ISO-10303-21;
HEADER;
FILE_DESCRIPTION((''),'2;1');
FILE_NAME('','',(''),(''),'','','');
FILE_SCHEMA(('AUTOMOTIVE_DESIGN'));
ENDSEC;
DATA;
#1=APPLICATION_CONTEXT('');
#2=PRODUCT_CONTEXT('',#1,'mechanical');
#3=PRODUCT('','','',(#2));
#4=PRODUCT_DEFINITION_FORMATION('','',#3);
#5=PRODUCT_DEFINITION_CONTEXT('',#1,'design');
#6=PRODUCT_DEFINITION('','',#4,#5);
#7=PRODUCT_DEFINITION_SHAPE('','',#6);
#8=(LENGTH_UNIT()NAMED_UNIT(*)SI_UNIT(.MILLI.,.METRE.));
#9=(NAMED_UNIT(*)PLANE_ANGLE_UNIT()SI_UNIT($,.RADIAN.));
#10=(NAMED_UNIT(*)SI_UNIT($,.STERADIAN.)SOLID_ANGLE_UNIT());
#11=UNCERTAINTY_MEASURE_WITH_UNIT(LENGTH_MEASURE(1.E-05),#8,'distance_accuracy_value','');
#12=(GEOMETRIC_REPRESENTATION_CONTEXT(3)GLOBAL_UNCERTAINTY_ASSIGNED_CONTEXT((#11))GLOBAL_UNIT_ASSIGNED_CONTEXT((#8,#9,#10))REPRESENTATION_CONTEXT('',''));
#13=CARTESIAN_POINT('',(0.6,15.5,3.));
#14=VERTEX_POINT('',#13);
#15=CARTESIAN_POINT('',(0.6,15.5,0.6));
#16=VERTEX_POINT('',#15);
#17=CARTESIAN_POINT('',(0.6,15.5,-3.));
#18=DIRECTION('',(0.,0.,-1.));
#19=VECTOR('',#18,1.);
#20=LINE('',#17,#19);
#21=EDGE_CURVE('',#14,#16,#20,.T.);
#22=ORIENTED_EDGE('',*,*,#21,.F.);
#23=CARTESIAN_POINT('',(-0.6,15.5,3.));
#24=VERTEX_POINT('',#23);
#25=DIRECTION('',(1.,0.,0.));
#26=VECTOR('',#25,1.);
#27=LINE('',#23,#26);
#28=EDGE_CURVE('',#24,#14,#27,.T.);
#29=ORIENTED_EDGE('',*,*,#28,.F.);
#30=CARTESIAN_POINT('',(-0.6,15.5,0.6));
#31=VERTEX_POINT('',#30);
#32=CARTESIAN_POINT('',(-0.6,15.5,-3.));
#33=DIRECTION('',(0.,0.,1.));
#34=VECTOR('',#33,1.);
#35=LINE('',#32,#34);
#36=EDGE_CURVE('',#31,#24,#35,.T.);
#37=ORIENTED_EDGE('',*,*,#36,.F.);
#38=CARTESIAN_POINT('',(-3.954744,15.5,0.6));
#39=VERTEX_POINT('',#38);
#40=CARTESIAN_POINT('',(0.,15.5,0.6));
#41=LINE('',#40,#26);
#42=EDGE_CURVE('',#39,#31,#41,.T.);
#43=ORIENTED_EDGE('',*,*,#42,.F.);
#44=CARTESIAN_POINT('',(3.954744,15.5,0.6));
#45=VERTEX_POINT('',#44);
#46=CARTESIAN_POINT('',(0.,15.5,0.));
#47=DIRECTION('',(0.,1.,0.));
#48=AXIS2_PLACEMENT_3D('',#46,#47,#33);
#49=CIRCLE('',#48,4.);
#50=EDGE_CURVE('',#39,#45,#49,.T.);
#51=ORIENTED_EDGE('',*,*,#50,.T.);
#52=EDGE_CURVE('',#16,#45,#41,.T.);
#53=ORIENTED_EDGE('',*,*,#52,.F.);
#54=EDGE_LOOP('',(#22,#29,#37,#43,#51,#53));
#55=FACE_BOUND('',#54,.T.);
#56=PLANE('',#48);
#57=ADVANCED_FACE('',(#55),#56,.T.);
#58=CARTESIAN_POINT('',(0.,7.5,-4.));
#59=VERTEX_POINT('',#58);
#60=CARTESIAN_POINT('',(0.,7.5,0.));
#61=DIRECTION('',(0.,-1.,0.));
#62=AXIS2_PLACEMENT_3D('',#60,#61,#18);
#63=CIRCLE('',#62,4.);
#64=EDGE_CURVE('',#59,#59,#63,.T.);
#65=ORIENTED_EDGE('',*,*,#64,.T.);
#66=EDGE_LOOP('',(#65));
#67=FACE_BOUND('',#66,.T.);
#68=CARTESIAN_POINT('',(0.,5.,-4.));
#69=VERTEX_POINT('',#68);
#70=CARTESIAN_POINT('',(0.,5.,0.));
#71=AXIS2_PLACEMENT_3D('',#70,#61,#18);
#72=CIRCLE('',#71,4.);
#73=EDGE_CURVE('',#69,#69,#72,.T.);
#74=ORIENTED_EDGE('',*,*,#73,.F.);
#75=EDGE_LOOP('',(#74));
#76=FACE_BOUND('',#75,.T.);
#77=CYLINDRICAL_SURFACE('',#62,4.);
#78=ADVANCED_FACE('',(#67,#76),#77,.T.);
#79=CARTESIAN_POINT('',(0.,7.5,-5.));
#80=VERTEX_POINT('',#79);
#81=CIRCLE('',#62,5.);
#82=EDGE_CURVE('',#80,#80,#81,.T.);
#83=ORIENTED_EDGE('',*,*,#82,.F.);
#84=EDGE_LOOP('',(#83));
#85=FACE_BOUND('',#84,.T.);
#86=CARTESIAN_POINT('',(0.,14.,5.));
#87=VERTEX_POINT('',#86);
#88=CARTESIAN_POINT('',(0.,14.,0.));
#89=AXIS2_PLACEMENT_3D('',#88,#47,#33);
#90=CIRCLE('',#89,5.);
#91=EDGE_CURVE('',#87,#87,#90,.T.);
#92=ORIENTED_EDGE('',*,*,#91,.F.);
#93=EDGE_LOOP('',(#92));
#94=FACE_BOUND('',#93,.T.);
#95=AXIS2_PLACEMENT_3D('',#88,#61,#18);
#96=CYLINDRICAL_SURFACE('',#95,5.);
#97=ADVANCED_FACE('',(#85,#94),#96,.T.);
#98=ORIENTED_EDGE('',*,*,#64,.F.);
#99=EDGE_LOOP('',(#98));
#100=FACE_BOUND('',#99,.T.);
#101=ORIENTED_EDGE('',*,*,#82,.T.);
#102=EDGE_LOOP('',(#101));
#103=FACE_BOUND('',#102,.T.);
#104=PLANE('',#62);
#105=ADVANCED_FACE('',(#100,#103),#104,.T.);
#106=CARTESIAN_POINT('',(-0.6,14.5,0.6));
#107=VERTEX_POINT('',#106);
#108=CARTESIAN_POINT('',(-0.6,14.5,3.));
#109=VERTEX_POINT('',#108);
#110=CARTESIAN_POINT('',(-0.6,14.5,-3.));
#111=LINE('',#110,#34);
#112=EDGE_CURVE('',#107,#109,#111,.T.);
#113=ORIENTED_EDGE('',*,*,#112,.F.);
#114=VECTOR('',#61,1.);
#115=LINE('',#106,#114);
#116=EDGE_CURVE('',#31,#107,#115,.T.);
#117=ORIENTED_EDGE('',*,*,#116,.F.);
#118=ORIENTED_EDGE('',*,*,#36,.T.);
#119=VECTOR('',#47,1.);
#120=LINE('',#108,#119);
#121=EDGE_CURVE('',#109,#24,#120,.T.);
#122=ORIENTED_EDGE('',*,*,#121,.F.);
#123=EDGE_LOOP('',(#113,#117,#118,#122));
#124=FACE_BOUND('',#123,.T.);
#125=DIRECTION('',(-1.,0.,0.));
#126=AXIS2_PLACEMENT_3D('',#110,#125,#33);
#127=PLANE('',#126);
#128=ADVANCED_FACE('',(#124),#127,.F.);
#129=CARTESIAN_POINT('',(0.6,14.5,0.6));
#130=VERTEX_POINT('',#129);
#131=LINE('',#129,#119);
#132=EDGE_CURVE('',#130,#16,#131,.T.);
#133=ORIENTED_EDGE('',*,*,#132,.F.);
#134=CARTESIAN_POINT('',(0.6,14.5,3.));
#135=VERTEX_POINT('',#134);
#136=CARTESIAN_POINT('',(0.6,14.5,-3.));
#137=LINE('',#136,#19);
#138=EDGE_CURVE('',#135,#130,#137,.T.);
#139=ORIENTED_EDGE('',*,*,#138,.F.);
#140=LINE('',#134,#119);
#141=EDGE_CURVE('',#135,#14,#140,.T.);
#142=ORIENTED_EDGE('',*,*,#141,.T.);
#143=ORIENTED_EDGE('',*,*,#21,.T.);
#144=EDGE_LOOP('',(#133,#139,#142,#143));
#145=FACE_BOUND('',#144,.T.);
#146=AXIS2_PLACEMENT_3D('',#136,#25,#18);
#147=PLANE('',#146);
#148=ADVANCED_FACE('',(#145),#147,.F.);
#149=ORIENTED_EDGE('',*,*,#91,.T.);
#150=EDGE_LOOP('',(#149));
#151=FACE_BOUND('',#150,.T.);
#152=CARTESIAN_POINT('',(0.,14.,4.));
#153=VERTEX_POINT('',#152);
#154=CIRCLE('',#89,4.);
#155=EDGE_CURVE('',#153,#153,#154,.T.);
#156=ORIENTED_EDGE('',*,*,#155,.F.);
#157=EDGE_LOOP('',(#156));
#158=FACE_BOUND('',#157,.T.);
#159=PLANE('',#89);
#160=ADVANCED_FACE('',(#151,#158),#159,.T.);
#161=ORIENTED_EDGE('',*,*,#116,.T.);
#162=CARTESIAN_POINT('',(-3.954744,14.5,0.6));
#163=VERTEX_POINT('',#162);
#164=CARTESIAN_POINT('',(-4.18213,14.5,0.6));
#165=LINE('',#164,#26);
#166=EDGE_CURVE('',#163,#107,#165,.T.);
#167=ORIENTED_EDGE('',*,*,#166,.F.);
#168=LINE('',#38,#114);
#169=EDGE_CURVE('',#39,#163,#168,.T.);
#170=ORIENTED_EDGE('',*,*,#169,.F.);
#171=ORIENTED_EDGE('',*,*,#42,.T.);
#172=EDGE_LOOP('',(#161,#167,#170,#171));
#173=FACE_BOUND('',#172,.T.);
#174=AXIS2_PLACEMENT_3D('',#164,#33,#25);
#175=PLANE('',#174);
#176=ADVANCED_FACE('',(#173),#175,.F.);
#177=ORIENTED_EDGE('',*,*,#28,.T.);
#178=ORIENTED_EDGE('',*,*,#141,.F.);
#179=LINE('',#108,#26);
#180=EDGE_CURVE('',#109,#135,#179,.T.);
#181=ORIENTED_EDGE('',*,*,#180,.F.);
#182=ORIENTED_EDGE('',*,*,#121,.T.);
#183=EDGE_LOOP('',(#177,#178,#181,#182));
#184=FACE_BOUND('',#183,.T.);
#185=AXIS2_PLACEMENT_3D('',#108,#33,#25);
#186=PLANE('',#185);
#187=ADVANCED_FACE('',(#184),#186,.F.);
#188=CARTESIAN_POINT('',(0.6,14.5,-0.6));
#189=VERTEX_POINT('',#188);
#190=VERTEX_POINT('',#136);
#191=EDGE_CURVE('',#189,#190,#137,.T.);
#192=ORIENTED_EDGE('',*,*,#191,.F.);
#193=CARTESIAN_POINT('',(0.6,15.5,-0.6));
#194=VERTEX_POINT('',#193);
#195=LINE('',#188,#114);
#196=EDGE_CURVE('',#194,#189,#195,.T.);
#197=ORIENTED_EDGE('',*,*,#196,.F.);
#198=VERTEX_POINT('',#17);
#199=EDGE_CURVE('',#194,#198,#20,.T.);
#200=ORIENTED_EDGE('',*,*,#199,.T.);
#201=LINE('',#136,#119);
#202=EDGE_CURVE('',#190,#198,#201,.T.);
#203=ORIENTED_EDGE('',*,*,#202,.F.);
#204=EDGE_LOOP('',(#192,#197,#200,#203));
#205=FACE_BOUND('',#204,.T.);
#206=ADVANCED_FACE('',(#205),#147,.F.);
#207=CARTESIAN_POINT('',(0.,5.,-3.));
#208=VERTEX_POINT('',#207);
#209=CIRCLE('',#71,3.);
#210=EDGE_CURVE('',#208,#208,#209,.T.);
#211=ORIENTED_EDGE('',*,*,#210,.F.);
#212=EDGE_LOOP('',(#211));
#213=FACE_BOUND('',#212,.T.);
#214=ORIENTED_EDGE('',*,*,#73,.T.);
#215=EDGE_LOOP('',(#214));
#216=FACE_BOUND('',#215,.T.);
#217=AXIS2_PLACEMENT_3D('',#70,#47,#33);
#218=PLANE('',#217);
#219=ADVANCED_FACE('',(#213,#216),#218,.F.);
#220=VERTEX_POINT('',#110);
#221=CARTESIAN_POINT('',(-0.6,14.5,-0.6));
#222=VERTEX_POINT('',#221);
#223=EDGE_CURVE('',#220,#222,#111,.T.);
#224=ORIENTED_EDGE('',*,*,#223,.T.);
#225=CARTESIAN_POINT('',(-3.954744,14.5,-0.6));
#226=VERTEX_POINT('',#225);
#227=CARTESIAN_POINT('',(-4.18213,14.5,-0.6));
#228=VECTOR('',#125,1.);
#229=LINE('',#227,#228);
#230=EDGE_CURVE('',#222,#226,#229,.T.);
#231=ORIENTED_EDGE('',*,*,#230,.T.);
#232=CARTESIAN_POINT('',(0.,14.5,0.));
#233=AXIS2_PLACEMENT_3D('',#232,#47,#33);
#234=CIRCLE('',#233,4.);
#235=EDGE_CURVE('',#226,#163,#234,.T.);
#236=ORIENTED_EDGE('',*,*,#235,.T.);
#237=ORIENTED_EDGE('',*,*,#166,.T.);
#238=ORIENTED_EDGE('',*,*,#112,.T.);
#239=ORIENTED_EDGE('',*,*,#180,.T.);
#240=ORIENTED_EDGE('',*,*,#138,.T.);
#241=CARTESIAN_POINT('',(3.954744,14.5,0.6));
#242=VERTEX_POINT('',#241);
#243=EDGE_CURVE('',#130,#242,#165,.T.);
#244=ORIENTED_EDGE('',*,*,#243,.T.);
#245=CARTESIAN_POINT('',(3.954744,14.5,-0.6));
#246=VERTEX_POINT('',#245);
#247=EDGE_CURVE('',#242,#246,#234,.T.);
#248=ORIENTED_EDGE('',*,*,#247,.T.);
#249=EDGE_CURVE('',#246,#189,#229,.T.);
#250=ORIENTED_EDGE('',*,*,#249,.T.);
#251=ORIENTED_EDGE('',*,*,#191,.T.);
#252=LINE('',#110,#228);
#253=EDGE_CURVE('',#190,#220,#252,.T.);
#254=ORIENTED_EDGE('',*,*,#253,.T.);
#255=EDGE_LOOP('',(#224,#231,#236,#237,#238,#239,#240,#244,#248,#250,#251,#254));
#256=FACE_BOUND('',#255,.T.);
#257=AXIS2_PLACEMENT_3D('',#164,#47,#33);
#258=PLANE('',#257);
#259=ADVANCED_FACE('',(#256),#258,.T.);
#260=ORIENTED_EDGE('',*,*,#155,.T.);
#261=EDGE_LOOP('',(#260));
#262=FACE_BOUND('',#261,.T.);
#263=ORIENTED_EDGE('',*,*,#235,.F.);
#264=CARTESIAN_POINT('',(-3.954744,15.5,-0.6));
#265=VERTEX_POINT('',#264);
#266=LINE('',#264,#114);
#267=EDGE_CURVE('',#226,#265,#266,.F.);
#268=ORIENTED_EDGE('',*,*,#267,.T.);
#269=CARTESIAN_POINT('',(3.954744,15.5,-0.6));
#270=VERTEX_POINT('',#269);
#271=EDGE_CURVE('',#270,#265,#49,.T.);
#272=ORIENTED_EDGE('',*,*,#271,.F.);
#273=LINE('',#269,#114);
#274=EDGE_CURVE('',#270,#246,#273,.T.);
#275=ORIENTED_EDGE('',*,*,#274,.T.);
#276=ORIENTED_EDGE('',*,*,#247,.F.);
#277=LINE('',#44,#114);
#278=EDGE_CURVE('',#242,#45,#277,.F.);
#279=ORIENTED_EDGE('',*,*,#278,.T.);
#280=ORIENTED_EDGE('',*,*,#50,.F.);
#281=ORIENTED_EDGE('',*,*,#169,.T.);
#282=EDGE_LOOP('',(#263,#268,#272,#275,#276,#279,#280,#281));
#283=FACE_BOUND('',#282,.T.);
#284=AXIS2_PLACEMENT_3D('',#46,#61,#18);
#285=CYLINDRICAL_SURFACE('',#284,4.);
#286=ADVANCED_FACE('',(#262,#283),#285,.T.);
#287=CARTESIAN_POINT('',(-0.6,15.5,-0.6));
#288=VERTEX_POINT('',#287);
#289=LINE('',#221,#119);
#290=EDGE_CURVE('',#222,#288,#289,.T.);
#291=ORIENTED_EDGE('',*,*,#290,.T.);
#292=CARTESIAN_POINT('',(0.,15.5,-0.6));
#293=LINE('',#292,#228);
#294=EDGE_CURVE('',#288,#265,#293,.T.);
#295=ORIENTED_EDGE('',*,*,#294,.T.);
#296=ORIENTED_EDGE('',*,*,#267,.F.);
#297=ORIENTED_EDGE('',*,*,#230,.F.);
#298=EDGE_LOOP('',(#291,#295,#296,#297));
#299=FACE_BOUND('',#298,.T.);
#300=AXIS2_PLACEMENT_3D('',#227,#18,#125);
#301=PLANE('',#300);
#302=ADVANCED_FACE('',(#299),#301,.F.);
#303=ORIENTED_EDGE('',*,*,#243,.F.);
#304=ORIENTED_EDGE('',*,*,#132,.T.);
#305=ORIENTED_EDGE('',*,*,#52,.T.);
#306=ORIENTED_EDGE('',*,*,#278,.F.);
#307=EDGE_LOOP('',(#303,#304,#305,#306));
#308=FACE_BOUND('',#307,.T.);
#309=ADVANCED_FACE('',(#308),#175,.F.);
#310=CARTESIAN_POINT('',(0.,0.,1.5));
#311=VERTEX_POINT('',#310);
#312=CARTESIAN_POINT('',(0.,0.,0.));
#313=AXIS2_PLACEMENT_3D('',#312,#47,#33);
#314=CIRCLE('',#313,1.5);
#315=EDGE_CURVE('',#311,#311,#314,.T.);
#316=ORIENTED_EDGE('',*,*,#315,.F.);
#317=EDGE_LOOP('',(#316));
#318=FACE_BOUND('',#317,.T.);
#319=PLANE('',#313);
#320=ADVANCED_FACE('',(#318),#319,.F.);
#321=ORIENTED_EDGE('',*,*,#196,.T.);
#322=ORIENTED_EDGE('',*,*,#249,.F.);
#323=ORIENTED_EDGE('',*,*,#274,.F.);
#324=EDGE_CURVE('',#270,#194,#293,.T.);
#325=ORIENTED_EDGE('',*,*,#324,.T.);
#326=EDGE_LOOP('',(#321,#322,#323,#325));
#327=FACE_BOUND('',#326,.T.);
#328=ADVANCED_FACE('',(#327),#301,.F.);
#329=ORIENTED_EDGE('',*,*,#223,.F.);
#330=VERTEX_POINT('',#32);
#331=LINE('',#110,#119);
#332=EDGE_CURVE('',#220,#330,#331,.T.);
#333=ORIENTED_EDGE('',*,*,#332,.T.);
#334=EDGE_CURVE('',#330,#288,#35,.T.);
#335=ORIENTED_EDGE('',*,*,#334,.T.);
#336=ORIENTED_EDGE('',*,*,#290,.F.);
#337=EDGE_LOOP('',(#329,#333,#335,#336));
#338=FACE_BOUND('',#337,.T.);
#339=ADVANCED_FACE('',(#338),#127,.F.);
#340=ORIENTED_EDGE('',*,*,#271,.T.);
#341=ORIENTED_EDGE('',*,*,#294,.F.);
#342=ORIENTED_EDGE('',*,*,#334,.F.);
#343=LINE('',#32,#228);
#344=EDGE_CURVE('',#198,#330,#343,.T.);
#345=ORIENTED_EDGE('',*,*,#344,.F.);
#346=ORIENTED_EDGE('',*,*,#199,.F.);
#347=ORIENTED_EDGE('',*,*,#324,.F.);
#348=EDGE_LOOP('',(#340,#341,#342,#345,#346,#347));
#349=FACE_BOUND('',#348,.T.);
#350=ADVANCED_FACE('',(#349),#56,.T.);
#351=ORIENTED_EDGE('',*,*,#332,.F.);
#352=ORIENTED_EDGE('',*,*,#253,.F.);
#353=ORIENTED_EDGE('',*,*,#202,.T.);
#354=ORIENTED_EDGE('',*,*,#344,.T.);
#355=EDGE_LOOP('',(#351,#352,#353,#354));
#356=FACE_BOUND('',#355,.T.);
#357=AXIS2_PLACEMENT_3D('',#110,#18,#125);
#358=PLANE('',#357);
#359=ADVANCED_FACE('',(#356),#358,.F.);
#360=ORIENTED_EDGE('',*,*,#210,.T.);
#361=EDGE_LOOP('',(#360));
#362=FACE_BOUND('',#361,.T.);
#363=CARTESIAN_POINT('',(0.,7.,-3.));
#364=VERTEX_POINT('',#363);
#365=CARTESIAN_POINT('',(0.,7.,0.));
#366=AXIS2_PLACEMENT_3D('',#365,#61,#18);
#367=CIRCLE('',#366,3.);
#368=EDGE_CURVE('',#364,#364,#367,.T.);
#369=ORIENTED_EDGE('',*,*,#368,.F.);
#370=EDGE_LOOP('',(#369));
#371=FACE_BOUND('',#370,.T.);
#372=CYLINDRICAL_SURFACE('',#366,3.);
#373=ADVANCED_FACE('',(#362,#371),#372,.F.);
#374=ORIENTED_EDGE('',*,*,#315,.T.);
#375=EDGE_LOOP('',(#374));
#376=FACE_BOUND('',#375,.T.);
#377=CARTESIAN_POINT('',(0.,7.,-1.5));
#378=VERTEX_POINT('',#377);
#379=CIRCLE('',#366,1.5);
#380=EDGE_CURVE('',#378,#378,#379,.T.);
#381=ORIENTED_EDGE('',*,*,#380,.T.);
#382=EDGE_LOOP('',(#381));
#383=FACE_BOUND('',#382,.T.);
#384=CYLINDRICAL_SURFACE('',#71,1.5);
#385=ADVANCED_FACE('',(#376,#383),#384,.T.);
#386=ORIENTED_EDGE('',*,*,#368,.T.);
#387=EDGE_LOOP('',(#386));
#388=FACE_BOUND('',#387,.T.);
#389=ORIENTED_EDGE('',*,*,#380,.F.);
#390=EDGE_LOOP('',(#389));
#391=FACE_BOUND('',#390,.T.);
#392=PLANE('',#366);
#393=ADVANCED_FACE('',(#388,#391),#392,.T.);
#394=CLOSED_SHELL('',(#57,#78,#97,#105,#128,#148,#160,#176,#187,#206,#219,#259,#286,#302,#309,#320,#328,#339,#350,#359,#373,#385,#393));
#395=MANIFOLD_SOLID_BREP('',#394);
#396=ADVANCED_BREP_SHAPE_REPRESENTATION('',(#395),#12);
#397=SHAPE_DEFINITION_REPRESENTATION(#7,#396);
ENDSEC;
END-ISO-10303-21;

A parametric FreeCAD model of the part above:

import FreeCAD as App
import Part
import Sketcher
from FreeCAD import Vector
Q = App.Units.Quantity


def add_polygon(sketch, points):
    """Adds a closed chain of lines whose ends are joined by coincident constraints."""
    first, n = sketch.GeometryCount, len(points)
    for a, b in zip(points, points[1:] + points[:1]):
        sketch.addGeometry(Part.LineSegment(App.Vector(*a, 0), App.Vector(*b, 0)), False)
    for i in range(n):
        sketch.addConstraint(Sketcher.Constraint("Coincident", first + i, 2, first + (i + 1) % n, 1))

doc = App.newDocument("Part")
body = doc.addObject("PartDesign::Body", "Body")

# Sketch on XZ plane
sketch1 = body.newObject("Sketcher::SketchObject", "Sketch")
sketch1.AttachmentSupport = (doc.getObject("XZ_Plane"), [""])
sketch1.MapMode = "FlatFace"
sketch1.addGeometry(Part.Circle(Vector(0, 0, 0), Vector(0, 0, 1), 1.5), False)
sketch1.addConstraint(Sketcher.Constraint("Coincident", 0, 3, -1, 1))
sketch1.addConstraint(Sketcher.Constraint("Diameter", 0, Q("3 mm")))
pad1 = body.newObject("PartDesign::Pad", "Pad")
pad1.Profile = sketch1
pad1.Length = 5
pad1.Reversed = True

# Sketch on XZ plane
sketch2 = body.newObject("Sketcher::SketchObject", "Sketch001")
sketch2.AttachmentSupport = (doc.getObject("XZ_Plane"), [""])
sketch2.MapMode = "FlatFace"
sketch2.AttachmentOffset = App.Placement(Vector(0, 0, -5), App.Rotation())
sketch2.addGeometry(Part.Circle(Vector(0, 0, 0), Vector(0, 0, 1), 5), False)
sketch2.addConstraint(Sketcher.Constraint("Coincident", 0, 3, -1, 1))
sketch2.addConstraint(Sketcher.Constraint("Diameter", 0, Q("10 mm")))
pad2 = body.newObject("PartDesign::Pad", "Pad001")
pad2.Profile = sketch2
pad2.Length = 9
pad2.Reversed = True

# Sketch on XZ plane
sketch3 = body.newObject("Sketcher::SketchObject", "Sketch002")
sketch3.AttachmentSupport = (doc.getObject("XZ_Plane"), [""])
sketch3.MapMode = "FlatFace"
sketch3.AttachmentOffset = App.Placement(Vector(0, 0, -14), App.Rotation())
sketch3.addGeometry(Part.Circle(Vector(0, 0, 0), Vector(0, 0, 1), 4), False)
sketch3.addConstraint(Sketcher.Constraint("Coincident", 0, 3, -1, 1))
sketch3.addConstraint(Sketcher.Constraint("Diameter", 0, Q("8 mm")))
pad3 = body.newObject("PartDesign::Pad", "Pad002")
pad3.Profile = sketch3
pad3.Length = 1.5
pad3.Reversed = True

# Sketch on XZ plane
sketch4 = body.newObject("Sketcher::SketchObject", "Sketch003")
sketch4.AttachmentSupport = (doc.getObject("XZ_Plane"), [""])
sketch4.MapMode = "FlatFace"
sketch4.AttachmentOffset = App.Placement(Vector(0, 0, -15.5), App.Rotation())
add_polygon(sketch4, [(4.2, 0.6), (4.2, -0.6), (-4.2, -0.6), (-4.2, 0.6)])  # lines 0-3
sketch4.addConstraint(Sketcher.Constraint("Vertical", 0))
sketch4.addConstraint(Sketcher.Constraint("Horizontal", 1))
sketch4.addConstraint(Sketcher.Constraint("Vertical", 2))
sketch4.addConstraint(Sketcher.Constraint("Horizontal", 3))
sketch4.addConstraint(Sketcher.Constraint("Symmetric", 0, 2, 2, 2, -1, 1))
sketch4.addConstraint(Sketcher.Constraint("DistanceY", 0, 2, 0, 1, Q("1.2 mm")))
sketch4.addConstraint(Sketcher.Constraint("DistanceX", 1, 2, 1, 1, Q("8.36426 mm")))
pocket1 = body.newObject("PartDesign::Pocket", "Pocket")
pocket1.Profile = sketch4
pocket1.Length = 1
pocket1.Reversed = True

# Sketch on XZ plane
sketch5 = body.newObject("Sketcher::SketchObject", "Sketch004")
sketch5.AttachmentSupport = (doc.getObject("XZ_Plane"), [""])
sketch5.MapMode = "FlatFace"
sketch5.AttachmentOffset = App.Placement(Vector(0, 0, -15.5), App.Rotation())
add_polygon(sketch5, [(0.6, 3), (0.6, -3), (-0.6, -3), (-0.6, 3)])  # lines 0-3
sketch5.addConstraint(Sketcher.Constraint("Vertical", 0))
sketch5.addConstraint(Sketcher.Constraint("Horizontal", 1))
sketch5.addConstraint(Sketcher.Constraint("Vertical", 2))
sketch5.addConstraint(Sketcher.Constraint("Horizontal", 3))
sketch5.addConstraint(Sketcher.Constraint("Symmetric", 0, 2, 2, 2, -1, 1))
sketch5.addConstraint(Sketcher.Constraint("DistanceY", 0, 2, 0, 1, Q("6 mm")))
sketch5.addConstraint(Sketcher.Constraint("DistanceX", 1, 2, 1, 1, Q("1.2 mm")))
pocket2 = body.newObject("PartDesign::Pocket", "Pocket001")
pocket2.Profile = sketch5
pocket2.Length = 1
pocket2.Reversed = True

# Sketch on XZ plane
sketch6 = body.newObject("Sketcher::SketchObject", "Sketch005")
sketch6.AttachmentSupport = (doc.getObject("XZ_Plane"), [""])
sketch6.MapMode = "FlatFace"
sketch6.AttachmentOffset = App.Placement(Vector(0, 0, -5), App.Rotation())
sketch6.addGeometry(Part.Circle(Vector(0, 0, 0), Vector(0, 0, 1), 3), False)
sketch6.addGeometry(Part.Circle(Vector(0, 0, 0), Vector(0, 0, 1), 1.5), False)
sketch6.addConstraint(Sketcher.Constraint("Coincident", 0, 3, -1, 1))
sketch6.addConstraint(Sketcher.Constraint("Coincident", 1, 3, -1, 1))
sketch6.addConstraint(Sketcher.Constraint("Diameter", 0, Q("6 mm")))
sketch6.addConstraint(Sketcher.Constraint("Diameter", 1, Q("3 mm")))
pocket3 = body.newObject("PartDesign::Pocket", "Pocket002")
pocket3.Profile = sketch6
pocket3.Length = 2

# Sketch on XZ plane
sketch7 = body.newObject("Sketcher::SketchObject", "Sketch006")
sketch7.AttachmentSupport = (doc.getObject("XZ_Plane"), [""])
sketch7.MapMode = "FlatFace"
sketch7.AttachmentOffset = App.Placement(Vector(0, 0, -5), App.Rotation())
add_polygon(sketch7, [(8.1, -8.1), (8.1, 8.1), (-8.1, 8.1), (-8.1, -8.1)])  # lines 0-3
sketch7.addGeometry(Part.Circle(Vector(0, 0, 0), Vector(0, 0, 1), 4), False)  # 4
sketch7.addConstraint(Sketcher.Constraint("Vertical", 0))
sketch7.addConstraint(Sketcher.Constraint("Horizontal", 1))
sketch7.addConstraint(Sketcher.Constraint("Vertical", 2))
sketch7.addConstraint(Sketcher.Constraint("Horizontal", 3))
sketch7.addConstraint(Sketcher.Constraint("Coincident", 4, 3, -1, 1))
sketch7.addConstraint(Sketcher.Constraint("Symmetric", 0, 2, 2, 2, -1, 1))
sketch7.addConstraint(Sketcher.Constraint("Equal", 3, 0))
sketch7.addConstraint(Sketcher.Constraint("Diameter", 4, Q("8 mm")))
sketch7.addConstraint(Sketcher.Constraint("DistanceX", 1, 2, 1, 1, Q("16.196 mm")))
pocket4 = body.newObject("PartDesign::Pocket", "Pocket003")
pocket4.Profile = sketch7
pocket4.Length = 2.5

doc.recompute()
